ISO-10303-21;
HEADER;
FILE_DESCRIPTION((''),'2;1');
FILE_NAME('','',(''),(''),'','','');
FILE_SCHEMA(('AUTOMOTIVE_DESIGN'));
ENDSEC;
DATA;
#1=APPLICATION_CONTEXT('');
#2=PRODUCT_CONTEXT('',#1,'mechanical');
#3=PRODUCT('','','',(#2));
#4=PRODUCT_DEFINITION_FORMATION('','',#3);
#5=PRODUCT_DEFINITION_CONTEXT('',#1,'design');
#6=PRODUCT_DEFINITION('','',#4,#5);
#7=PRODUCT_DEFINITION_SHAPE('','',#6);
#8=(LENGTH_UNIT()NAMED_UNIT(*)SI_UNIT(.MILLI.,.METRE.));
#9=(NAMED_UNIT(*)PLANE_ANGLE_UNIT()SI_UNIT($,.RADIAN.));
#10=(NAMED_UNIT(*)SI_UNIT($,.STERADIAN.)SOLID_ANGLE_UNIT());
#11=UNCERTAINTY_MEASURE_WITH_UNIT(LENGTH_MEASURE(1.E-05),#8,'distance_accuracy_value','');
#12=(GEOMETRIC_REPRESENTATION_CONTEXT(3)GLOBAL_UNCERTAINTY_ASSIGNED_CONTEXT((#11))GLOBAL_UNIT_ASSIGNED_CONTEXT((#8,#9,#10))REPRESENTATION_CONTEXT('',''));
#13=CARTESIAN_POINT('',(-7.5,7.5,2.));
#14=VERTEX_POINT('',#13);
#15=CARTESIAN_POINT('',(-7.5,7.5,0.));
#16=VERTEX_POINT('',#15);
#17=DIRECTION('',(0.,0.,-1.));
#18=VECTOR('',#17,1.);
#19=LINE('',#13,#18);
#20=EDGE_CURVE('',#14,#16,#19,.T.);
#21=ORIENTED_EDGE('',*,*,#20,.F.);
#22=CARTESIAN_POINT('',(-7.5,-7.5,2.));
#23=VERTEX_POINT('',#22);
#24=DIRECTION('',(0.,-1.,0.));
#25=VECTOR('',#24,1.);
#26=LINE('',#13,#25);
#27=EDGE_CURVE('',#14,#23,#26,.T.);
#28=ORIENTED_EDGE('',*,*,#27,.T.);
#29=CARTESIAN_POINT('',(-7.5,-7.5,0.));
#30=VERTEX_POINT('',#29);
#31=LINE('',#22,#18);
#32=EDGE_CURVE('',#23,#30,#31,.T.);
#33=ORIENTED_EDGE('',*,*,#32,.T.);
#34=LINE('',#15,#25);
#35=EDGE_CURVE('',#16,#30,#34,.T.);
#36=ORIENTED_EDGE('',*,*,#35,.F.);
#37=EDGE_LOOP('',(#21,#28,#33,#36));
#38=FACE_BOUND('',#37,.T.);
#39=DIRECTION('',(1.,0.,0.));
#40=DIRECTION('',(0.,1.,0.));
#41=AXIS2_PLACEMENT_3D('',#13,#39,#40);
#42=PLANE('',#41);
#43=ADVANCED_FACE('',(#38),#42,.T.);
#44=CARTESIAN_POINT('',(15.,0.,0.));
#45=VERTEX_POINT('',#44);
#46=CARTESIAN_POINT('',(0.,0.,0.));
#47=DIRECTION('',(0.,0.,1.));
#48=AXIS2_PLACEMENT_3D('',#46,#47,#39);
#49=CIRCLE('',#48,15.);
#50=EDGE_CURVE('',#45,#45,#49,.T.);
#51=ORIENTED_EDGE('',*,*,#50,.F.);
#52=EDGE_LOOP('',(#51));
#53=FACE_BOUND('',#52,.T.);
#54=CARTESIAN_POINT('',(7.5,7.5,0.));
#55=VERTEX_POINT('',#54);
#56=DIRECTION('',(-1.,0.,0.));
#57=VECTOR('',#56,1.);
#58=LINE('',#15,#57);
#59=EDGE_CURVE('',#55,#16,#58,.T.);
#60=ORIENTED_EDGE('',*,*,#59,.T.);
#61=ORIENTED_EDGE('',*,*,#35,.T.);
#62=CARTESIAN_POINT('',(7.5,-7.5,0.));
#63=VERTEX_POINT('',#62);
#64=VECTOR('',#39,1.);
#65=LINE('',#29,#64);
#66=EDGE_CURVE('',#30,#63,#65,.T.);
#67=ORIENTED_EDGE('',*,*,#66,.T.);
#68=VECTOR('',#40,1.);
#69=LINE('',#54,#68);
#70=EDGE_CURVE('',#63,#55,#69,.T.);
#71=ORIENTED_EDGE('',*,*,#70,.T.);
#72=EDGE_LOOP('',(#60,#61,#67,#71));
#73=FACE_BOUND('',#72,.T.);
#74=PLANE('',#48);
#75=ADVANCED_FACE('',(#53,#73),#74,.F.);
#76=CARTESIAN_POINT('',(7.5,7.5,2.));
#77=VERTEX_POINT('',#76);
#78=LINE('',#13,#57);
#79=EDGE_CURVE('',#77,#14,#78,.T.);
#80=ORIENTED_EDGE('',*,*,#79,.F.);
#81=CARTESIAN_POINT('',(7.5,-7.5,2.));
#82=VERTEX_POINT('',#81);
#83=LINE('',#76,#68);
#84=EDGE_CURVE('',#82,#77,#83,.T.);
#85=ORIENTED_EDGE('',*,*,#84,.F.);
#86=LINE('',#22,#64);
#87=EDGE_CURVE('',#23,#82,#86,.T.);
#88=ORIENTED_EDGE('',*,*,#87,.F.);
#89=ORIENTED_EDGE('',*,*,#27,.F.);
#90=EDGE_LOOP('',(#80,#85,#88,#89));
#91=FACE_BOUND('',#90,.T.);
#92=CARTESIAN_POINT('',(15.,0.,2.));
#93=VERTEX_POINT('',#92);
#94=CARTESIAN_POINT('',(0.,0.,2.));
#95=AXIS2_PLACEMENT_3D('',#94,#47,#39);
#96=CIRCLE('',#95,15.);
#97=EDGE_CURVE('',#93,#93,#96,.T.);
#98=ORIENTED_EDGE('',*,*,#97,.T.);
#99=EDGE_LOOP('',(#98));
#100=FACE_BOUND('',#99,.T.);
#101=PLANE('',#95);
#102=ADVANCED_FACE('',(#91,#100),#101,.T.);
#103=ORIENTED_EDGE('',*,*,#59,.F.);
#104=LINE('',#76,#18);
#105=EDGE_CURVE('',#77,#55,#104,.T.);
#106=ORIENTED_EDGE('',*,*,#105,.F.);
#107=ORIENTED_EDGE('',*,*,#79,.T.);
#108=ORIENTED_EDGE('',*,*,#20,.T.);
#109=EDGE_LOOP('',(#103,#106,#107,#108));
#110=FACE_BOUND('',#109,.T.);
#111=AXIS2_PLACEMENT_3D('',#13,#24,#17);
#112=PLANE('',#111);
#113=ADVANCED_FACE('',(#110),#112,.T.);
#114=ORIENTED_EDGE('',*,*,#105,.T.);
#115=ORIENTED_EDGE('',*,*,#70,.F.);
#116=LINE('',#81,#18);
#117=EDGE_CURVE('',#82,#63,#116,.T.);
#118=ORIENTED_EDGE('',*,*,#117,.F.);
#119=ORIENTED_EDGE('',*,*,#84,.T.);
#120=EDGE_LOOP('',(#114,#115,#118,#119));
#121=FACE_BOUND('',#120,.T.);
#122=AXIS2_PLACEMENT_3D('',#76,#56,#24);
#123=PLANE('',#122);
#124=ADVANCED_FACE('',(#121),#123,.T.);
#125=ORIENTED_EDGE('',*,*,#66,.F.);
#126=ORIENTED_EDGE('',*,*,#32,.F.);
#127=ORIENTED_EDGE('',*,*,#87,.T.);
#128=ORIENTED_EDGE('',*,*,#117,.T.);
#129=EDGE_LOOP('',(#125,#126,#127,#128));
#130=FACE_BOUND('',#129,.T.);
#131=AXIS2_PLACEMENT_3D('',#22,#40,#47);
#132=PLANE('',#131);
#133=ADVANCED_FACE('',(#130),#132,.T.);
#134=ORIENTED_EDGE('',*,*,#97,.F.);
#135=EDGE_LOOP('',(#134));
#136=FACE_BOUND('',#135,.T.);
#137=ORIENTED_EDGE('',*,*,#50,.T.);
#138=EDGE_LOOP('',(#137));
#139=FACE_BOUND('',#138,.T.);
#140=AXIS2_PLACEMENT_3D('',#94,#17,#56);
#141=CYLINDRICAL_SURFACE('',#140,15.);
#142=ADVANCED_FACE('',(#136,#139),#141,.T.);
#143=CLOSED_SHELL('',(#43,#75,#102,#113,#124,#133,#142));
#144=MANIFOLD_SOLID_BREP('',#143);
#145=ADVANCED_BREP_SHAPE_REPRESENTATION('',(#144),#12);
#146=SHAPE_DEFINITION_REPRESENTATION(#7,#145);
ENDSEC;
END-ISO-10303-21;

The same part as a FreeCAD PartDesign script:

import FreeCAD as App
import Part
import Sketcher

doc = App.newDocument("Part")
body = doc.addObject("PartDesign::Body", "Body")

# Sketch on XY plane
sketch1 = body.newObject("Sketcher::SketchObject", "Sketch")
sketch1.AttachmentSupport = (doc.getObject("XY_Plane"), [""])
sketch1.MapMode = "FlatFace"
sketch1.addGeometry([
    Part.Circle(App.Vector(0, 0, 0), App.Vector(0, 0, 1), 15),  # 0
    Part.LineSegment(App.Vector(8, -8, 0), App.Vector(-8, -8, 0)),  # 1
    Part.LineSegment(App.Vector(-8, -8, 0), App.Vector(-8, 8, 0)),  # 2
    Part.LineSegment(App.Vector(-8, 8, 0), App.Vector(8, 8, 0)),  # 3
    Part.LineSegment(App.Vector(8, 8, 0), App.Vector(8, -8, 0)),  # 4
], False)
sketch1.addConstraint([
    Sketcher.Constraint("Coincident", 1, 2, 2, 1),
    Sketcher.Constraint("Coincident", 2, 2, 3, 1),
    Sketcher.Constraint("Coincident", 3, 2, 4, 1),
    Sketcher.Constraint("Coincident", 4, 2, 1, 1),
    Sketcher.Constraint("Horizontal", 1),
    Sketcher.Constraint("Vertical", 2),
    Sketcher.Constraint("Horizontal", 3),
    Sketcher.Constraint("Vertical", 4),
    Sketcher.Constraint("Coincident", 0, 3, -1, 1),
    Sketcher.Constraint("Symmetric", 1, 2, 3, 2, -1, 1),
    Sketcher.Constraint("Equal", 3, 2),
    Sketcher.Constraint("Diameter", 0, 30.0),
    Sketcher.Constraint("DistanceX", 1, 2, 1, 1, 15.0),
])
pad1 = body.newObject("PartDesign::Pad", "Pad")
pad1.Profile = sketch1
pad1.Length = 2

doc.recompute()
